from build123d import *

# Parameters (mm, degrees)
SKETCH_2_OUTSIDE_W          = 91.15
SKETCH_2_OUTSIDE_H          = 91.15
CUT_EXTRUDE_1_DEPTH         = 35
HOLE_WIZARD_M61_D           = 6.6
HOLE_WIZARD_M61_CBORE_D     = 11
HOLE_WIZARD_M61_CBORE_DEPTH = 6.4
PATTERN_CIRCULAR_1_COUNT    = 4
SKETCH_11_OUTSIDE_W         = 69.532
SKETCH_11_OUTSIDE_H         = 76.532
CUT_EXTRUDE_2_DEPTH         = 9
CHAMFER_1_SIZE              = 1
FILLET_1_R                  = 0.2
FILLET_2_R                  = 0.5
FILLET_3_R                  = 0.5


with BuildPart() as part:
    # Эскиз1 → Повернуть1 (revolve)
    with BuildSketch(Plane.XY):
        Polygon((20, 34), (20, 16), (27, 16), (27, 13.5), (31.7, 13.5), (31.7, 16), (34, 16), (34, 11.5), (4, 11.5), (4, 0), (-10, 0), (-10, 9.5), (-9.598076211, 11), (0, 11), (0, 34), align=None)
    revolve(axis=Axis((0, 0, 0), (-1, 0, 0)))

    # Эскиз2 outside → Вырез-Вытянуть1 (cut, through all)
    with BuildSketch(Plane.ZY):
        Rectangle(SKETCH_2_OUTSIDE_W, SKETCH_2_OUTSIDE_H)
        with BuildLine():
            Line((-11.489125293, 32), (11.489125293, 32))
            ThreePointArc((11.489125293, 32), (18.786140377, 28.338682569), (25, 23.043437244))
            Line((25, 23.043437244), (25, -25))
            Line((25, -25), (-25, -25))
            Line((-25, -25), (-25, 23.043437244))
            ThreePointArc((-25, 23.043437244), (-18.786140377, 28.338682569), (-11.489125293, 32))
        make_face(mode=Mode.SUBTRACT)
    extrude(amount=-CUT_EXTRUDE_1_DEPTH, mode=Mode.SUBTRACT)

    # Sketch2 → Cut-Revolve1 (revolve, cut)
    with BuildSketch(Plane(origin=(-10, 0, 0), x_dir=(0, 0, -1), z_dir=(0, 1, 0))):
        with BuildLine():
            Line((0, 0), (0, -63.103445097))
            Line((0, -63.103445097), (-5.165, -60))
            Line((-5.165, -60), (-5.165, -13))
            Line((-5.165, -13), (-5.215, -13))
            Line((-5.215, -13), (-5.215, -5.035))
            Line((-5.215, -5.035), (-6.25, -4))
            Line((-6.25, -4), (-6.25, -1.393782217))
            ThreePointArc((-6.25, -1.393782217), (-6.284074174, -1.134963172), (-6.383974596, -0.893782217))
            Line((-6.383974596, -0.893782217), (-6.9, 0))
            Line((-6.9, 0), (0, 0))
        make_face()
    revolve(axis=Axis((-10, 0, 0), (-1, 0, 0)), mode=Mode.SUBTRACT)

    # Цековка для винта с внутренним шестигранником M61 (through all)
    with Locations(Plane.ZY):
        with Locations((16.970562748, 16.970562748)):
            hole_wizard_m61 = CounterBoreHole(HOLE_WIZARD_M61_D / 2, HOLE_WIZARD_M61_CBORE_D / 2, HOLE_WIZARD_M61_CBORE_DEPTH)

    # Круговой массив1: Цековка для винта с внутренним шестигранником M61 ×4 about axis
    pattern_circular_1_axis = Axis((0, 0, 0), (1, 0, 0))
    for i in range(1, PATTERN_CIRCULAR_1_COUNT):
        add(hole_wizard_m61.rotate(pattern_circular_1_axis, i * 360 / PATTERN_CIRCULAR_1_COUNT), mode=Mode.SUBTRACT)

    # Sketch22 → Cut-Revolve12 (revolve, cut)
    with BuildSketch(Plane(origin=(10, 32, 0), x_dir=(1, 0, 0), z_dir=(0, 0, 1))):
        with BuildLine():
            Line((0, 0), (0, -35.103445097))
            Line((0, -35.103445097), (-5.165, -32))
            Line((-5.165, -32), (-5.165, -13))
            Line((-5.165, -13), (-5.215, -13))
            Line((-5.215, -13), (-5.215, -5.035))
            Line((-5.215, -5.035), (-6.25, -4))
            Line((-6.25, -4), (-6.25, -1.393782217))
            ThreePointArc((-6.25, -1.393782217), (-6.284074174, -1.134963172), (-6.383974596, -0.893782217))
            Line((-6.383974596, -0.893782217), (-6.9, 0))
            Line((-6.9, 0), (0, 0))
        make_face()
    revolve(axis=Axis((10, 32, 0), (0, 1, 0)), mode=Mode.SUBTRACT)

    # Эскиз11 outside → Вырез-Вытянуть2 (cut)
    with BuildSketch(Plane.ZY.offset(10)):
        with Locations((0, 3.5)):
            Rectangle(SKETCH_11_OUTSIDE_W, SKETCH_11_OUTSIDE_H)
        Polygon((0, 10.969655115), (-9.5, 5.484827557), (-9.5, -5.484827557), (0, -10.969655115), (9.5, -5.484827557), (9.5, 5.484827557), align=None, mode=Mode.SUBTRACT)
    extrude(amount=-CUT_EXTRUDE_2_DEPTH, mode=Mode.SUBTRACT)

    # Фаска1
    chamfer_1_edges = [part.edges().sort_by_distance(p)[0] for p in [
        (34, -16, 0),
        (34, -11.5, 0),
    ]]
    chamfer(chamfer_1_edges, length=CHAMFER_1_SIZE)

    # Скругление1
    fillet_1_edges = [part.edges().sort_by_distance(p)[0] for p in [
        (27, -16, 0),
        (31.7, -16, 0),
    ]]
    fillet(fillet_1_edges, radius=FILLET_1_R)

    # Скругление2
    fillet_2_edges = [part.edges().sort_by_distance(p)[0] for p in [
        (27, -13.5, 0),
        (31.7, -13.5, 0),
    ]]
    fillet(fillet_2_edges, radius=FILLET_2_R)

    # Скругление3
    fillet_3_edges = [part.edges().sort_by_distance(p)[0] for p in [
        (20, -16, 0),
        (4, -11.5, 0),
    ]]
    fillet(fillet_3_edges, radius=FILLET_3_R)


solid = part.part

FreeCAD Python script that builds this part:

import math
import FreeCAD as App
import Part
import Sketcher

V = App.Vector
Q = App.Units.Quantity


def edges_at(feature, points):
    """Names of the edges that pass closest to the given points."""
    edges = feature.Shape.Edges
    near = lambda p: min(range(len(edges)), key=lambda i: edges[i].distToShape(Part.Vertex(*p))[0])
    return sorted({f"Edge{near(p) + 1}" for p in points})


def add_polygon(sketch, points):
    """Adds a closed chain of lines whose ends are joined by coincident constraints."""
    first, n = sketch.GeometryCount, len(points)
    for a, b in zip(points, points[1:] + points[:1]):
        sketch.addGeometry(Part.LineSegment(App.Vector(*a, 0), App.Vector(*b, 0)), False)
    for i in range(n):
        sketch.addConstraint(Sketcher.Constraint("Coincident", first + i, 2, first + (i + 1) % n, 1))

doc = App.newDocument("Part")
params = doc.addObject("Spreadsheet::Sheet", "Params")
for row, (alias, value) in enumerate([
    ("sketch1_width", "20 mm"),
    ("sketch1_width2", "14 mm"),
    ("sketch1_width3", "30 mm"),
    ("sketch1_width4", "7 mm"),
    ("sketch1_height", "18 mm"),
    ("revolution_angle", "360 deg"),
    ("sketch2_radius", "34 mm"),
    ("sketch2_height", "50 mm"),
    ("sketch2_width", "91.15 mm"),
    ("sketch3_radius", "1 mm"),
    ("sketch3_width", "47 mm"),
    ("sketch3_height", "6.9 mm"),
    ("sketch3_height2", "0.05 mm"),
    ("groove_angle", "360 deg"),
    ("sketch4_diameter", "6.6 mm"),
    ("hole_diameter", "6.6 mm"),
    ("hole_cbore_diameter", "11 mm"),
    ("hole_cbore_depth", "6.4 mm"),
    ("sketch5_radius", "1 mm"),
    ("sketch5_height", "19 mm"),
    ("sketch5_width", "6.9 mm"),
    ("sketch5_width2", "0.05 mm"),
    ("groove2_angle", "360 deg"),
    ("pocket2_length", "9 mm"),
    ("chamfer_size", "1 mm"),
    ("fillet_radius", "0.2 mm"),
    ("fillet2_radius", "0.5 mm"),
    ("fillet3_radius", "0.5 mm"),
], start=1):
    params.set(f"A{row}", alias)
    params.set(f"B{row}", "=" + value)
    params.setAlias(f"B{row}", alias)

body = doc.addObject("PartDesign::Body", "Body")

sketch1 = body.newObject("Sketcher::SketchObject", "Sketch")
sketch1.AttachmentSupport = (doc.getObject("XY_Plane"), [""])
sketch1.MapMode = "FlatFace"
add_polygon(sketch1, [(20, 16), (20, 34), (0, 34), (0, 11), (-9.6, 11), (-10, 9.5), (-10, 0), (4, 0), (4, 11.5), (34, 11.5), (34, 16), (31.7, 16), (31.7, 13.5), (27, 13.5), (27, 16)])
sketch1.addConstraint([
    Sketcher.Constraint("Vertical", 0),
    Sketcher.Constraint("Horizontal", 1),
    Sketcher.Constraint("Vertical", 2),
    Sketcher.Constraint("Horizontal", 3),
    Sketcher.Constraint("Vertical", 5),
    Sketcher.Constraint("Horizontal", 6),
    Sketcher.Constraint("Vertical", 7),
    Sketcher.Constraint("Horizontal", 8),
    Sketcher.Constraint("Vertical", 9),
    Sketcher.Constraint("Horizontal", 10),
    Sketcher.Constraint("Vertical", 11),
    Sketcher.Constraint("Horizontal", 12),
    Sketcher.Constraint("Vertical", 13),
    Sketcher.Constraint("Horizontal", 14),
    Sketcher.Constraint("PointOnObject", 1, 2, -2),
    Sketcher.Constraint("PointOnObject", 5, 2, -1),
    Sketcher.Constraint("Horizontal", 10, 2, 13, 2),
    Sketcher.Constraint("DistanceX", 1, 2, 1, 1, 20.0),
    Sketcher.Constraint("DistanceX", 6, 1, 6, 2, 14.0),
    Sketcher.Constraint("DistanceX", 8, 1, 8, 2, 30.0),
    Sketcher.Constraint("DistanceX", 14, 2, 14, 1, 7.0),
    Sketcher.Constraint("DistanceY", 0, 1, 0, 2, 18.0),
    Sketcher.Constraint("DistanceY", 2, 2, 2, 1, 23.0),
    Sketcher.Constraint("Angle", 4, Q("-105 deg")),
    Sketcher.Constraint("DistanceX", 10, 2, 10, 1, 2.3),
    Sketcher.Constraint("DistanceX", 12, 2, 12, 1, 4.7),
    Sketcher.Constraint("DistanceY", 5, 2, 5, 1, 9.5),
    Sketcher.Constraint("DistanceY", 7, 1, 7, 2, 11.5),
    Sketcher.Constraint("DistanceY", 9, 1, 9, 2, 4.5),
    Sketcher.Constraint("DistanceY", 11, 2, 11, 1, 2.5),
])
sketch1.setExpression("Constraints[32]", "Params.sketch1_width")
sketch1.setExpression("Constraints[33]", "Params.sketch1_width2")
sketch1.setExpression("Constraints[34]", "Params.sketch1_width3")
sketch1.setExpression("Constraints[35]", "Params.sketch1_width4")
sketch1.setExpression("Constraints[36]", "Params.sketch1_height")
revolution = body.newObject("PartDesign::Revolution", "Revolution")
revolution.Profile = sketch1
revolution.ReferenceAxis = (sketch1, ["H_Axis"])
revolution.setExpression("Angle", "Params.revolution_angle")

sketch2 = body.newObject("Sketcher::SketchObject", "Sketch001")
sketch2.AttachmentSupport = (doc.getObject("YZ_Plane"), [""])
sketch2.MapMode = "FlatFace"
add_polygon(sketch2, [(46, -46), (-46, -46), (-46, 46), (46, 46)])
sketch2.addGeometry(Part.ArcOfCircle(Part.Circle(V(0, 0, 0), V(0, 0, 1), 34), math.radians(-47), math.radians(-20)), False)
sketch2.addGeometry(Part.LineSegment(V(32, -11, 0), V(32, 11, 0)), False)
sketch2.addGeometry(Part.ArcOfCircle(Part.Circle(V(0, 0, 0), V(0, 0, 1), 34), math.radians(20), math.radians(47)), False)
sketch2.addGeometry(Part.LineSegment(V(23, 25, 0), V(-25, 25, 0)), False)
sketch2.addGeometry(Part.LineSegment(V(-25, 25, 0), V(-25, -25, 0)), False)
sketch2.addGeometry(Part.LineSegment(V(-25, -25, 0), V(23, -25, 0)), False)
sketch2.addConstraint([
    Sketcher.Constraint("Coincident", 4, 2, 5, 1),
    Sketcher.Constraint("Coincident", 5, 2, 6, 1),
    Sketcher.Constraint("Coincident", 6, 2, 7, 1),
    Sketcher.Constraint("Coincident", 7, 2, 8, 1),
    Sketcher.Constraint("Coincident", 8, 2, 9, 1),
    Sketcher.Constraint("Coincident", 9, 2, 4, 1),
    Sketcher.Constraint("Horizontal", 0),
    Sketcher.Constraint("Vertical", 1),
    Sketcher.Constraint("Horizontal", 2),
    Sketcher.Constraint("Vertical", 3),
    Sketcher.Constraint("Vertical", 5),
    Sketcher.Constraint("Horizontal", 7),
    Sketcher.Constraint("Vertical", 8),
    Sketcher.Constraint("Horizontal", 9),
    Sketcher.Constraint("Coincident", 4, 3, -1, 1),
    Sketcher.Constraint("Coincident", 6, 3, -1, 1),
    Sketcher.Constraint("Equal", 4, 6),
    Sketcher.Constraint("Symmetric", 0, 2, 2, 2, -1, 1),
    Sketcher.Constraint("Vertical", 6, 2, 9, 2),
    Sketcher.Constraint("Equal", 2, 1),
    Sketcher.Constraint("Radius", 4, 34.0),
    Sketcher.Constraint("DistanceY", 8, 2, 8, 1, 50.0),
    Sketcher.Constraint("DistanceX", -1, 1, 4, 2, 32.0),
    Sketcher.Constraint("DistanceX", 7, 2, -1, 1, 25.0),
    Sketcher.Constraint("DistanceX", 0, 2, 0, 1, 91.15),
])
sketch2.setExpression("Constraints[24]", "Params.sketch2_radius")
sketch2.setExpression("Constraints[25]", "Params.sketch2_height")
sketch2.setExpression("Constraints[28]", "Params.sketch2_width")
pocket1 = body.newObject("PartDesign::Pocket", "Pocket")
pocket1.Profile = sketch2
pocket1.Type = "ThroughAll"
pocket1.Reversed = True

sketch3 = body.newObject("Sketcher::SketchObject", "Sketch002")
sketch3.AttachmentSupport = (doc.getObject("XZ_Plane"), [""])
sketch3.MapMode = "FlatFace"
sketch3.addGeometry([
    Part.LineSegment(V(53.103, 0, 0), V(-10, 0, 0)),
    Part.LineSegment(V(-10, 0, 0), V(-10, 6.9, 0)),
    Part.LineSegment(V(-10, 6.9, 0), V(-9.106, 6.384, 0)),
    Part.ArcOfCircle(Part.Circle(V(-8.606, 7.25, 0), V(0, 0, 1), 1), math.radians(-120), math.radians(-90)),
    Part.LineSegment(V(-8.606, 6.25, 0), V(-6, 6.25, 0)),
    Part.LineSegment(V(-6, 6.25, 0), V(-4.965, 5.215, 0)),
    Part.LineSegment(V(-4.965, 5.215, 0), V(3, 5.215, 0)),
    Part.LineSegment(V(3, 5.215, 0), V(3, 5.165, 0)),
    Part.LineSegment(V(3, 5.165, 0), V(50, 5.165, 0)),
    Part.LineSegment(V(50, 5.165, 0), V(53.103, 0, 0)),
], False)
sketch3.addConstraint([
    Sketcher.Constraint("Coincident", 0, 2, 1, 1),
    Sketcher.Constraint("Coincident", 1, 2, 2, 1),
    Sketcher.Constraint("Tangent", 2, 2, 3, 1),
    Sketcher.Constraint("Tangent", 3, 2, 4, 1),
    Sketcher.Constraint("Coincident", 4, 2, 5, 1),
    Sketcher.Constraint("Coincident", 5, 2, 6, 1),
    Sketcher.Constraint("Coincident", 6, 2, 7, 1),
    Sketcher.Constraint("Coincident", 7, 2, 8, 1),
    Sketcher.Constraint("Coincident", 8, 2, 9, 1),
    Sketcher.Constraint("Coincident", 9, 2, 0, 1),
    Sketcher.Constraint("Horizontal", 0),
    Sketcher.Constraint("Vertical", 1),
    Sketcher.Constraint("Horizontal", 4),
    Sketcher.Constraint("Horizontal", 6),
    Sketcher.Constraint("Vertical", 7),
    Sketcher.Constraint("Horizontal", 8),
    Sketcher.Constraint("PointOnObject", 0, 2, -1),
    Sketcher.Constraint("Radius", 3, 1.0),
    Sketcher.Constraint("DistanceX", 8, 1, 8, 2, 47.0),
    Sketcher.Constraint("Angle", 2, Q("-30 deg")),
    Sketcher.Constraint("Angle", 5, Q("-45 deg")),
    Sketcher.Constraint("Angle", 9, Q("-59 deg")),
    Sketcher.Constraint("DistanceY", 1, 1, 1, 2, 6.9),
    Sketcher.Constraint("DistanceX", 0, 2, -1, 1, 10.0),
    Sketcher.Constraint("DistanceX", 4, 2, -1, 1, 6.0),
    Sketcher.Constraint("DistanceX", -1, 1, 6, 2, 3.0),
    Sketcher.Constraint("DistanceY", 7, 2, 7, 1, 0.05),
    Sketcher.Constraint("DistanceX", 6, 1, 6, 2, 7.965),
    Sketcher.Constraint("DistanceY", -1, 1, 3, 3, 7.25),
])
sketch3.setExpression("Constraints[17]", "Params.sketch3_radius")
sketch3.setExpression("Constraints[18]", "Params.sketch3_width")
sketch3.setExpression("Constraints[22]", "Params.sketch3_height")
sketch3.setExpression("Constraints[26]", "Params.sketch3_height2")
groove = body.newObject("PartDesign::Groove", "Groove")
groove.Profile = sketch3
groove.ReferenceAxis = (sketch3, ["H_Axis"])
groove.setExpression("Angle", "Params.groove_angle")

sketch4 = body.newObject("Sketcher::SketchObject", "Sketch003")
sketch4.AttachmentSupport = (doc.getObject("YZ_Plane"), [""])
sketch4.MapMode = "FlatFace"
sketch4.addGeometry(Part.Circle(V(17, 17, 0), V(0, 0, 1), 3.3), False)
sketch4.addConstraint([
    Sketcher.Constraint("Diameter", 0, 6.6),
    Sketcher.Constraint("DistanceX", -1, 1, 0, 3, 16.970563),
    Sketcher.Constraint("DistanceY", -1, 1, 0, 3, 16.970563),
])
sketch4.setExpression("Constraints[0]", "Params.sketch4_diameter")
doc.recompute()
hole = body.newObject("PartDesign::Hole", "Hole")
hole.Profile = sketch4
hole.ThreadType = "None"
hole.setExpression("Diameter", "Params.hole_diameter")
hole.DepthType = "ThroughAll"
hole.HoleCutType = "Counterbore"
hole.setExpression("HoleCutDiameter", "Params.hole_cbore_diameter")
hole.setExpression("HoleCutDepth", "Params.hole_cbore_depth")
hole.Reversed = True
doc.recompute()

polarpattern = body.newObject("PartDesign::PolarPattern", "PolarPattern")
polarpattern.Originals = [hole]
polarpattern.Axis = (doc.getObject("X_Axis"), [""])
polarpattern.Angle = 360
polarpattern.Occurrences = 4
body.Tip = polarpattern

sketch5 = body.newObject("Sketcher::SketchObject", "Sketch004")
sketch5.AttachmentSupport = (doc.getObject("XY_Plane"), [""])
sketch5.MapMode = "FlatFace"
sketch5.addGeometry([
    Part.LineSegment(V(10, -3.103, 0), V(10, 32, 0)),
    Part.LineSegment(V(10, 32, 0), V(3.1, 32, 0)),
    Part.LineSegment(V(3.1, 32, 0), V(3.616, 31.106, 0)),
    Part.ArcOfCircle(Part.Circle(V(2.75, 30.606, 0), V(0, 0, 1), 1), math.radians(0), math.radians(30)),
    Part.LineSegment(V(3.75, 30.606, 0), V(3.75, 28, 0)),
    Part.LineSegment(V(3.75, 28, 0), V(4.785, 26.965, 0)),
    Part.LineSegment(V(4.785, 26.965, 0), V(4.785, 19, 0)),
    Part.LineSegment(V(4.785, 19, 0), V(4.835, 19, 0)),
    Part.LineSegment(V(4.835, 19, 0), V(4.835, 0, 0)),
    Part.LineSegment(V(4.835, 0, 0), V(10, -3.103, 0)),
], False)
sketch5.addGeometry(Part.LineSegment(V(10, -3.103, 0), V(10, 32, 0)), True)
sketch5.addConstraint([
    Sketcher.Constraint("Coincident", 0, 2, 1, 1),
    Sketcher.Constraint("Coincident", 1, 2, 2, 1),
    Sketcher.Constraint("Tangent", 2, 2, 3, 2),
    Sketcher.Constraint("Tangent", 3, 1, 4, 1),
    Sketcher.Constraint("Coincident", 4, 2, 5, 1),
    Sketcher.Constraint("Coincident", 5, 2, 6, 1),
    Sketcher.Constraint("Coincident", 6, 2, 7, 1),
    Sketcher.Constraint("Coincident", 7, 2, 8, 1),
    Sketcher.Constraint("Coincident", 8, 2, 9, 1),
    Sketcher.Constraint("Coincident", 9, 2, 0, 1),
    Sketcher.Constraint("Vertical", 0),
    Sketcher.Constraint("Horizontal", 1),
    Sketcher.Constraint("Vertical", 4),
    Sketcher.Constraint("Vertical", 6),
    Sketcher.Constraint("Horizontal", 7),
    Sketcher.Constraint("Vertical", 8),
    Sketcher.Constraint("Vertical", 10),
    Sketcher.Constraint("Coincident", 10, 1, 9, 2),
    Sketcher.Constraint("PointOnObject", 8, 2, -1),
    Sketcher.Constraint("Horizontal", 1, 2, 10, 2),
    Sketcher.Constraint("Radius", 3, 1.0),
    Sketcher.Constraint("DistanceY", 8, 2, 8, 1, 19.0),
    Sketcher.Constraint("Angle", 2, Q("-60 deg")),
    Sketcher.Constraint("Angle", 5, Q("-45 deg")),
    Sketcher.Constraint("Angle", 9, Q("-31 deg")),
    Sketcher.Constraint("DistanceX", 1, 2, 1, 1, 6.9),
    Sketcher.Constraint("DistanceX", -1, 1, 0, 2, 10.0),
    Sketcher.Constraint("DistanceY", -1, 1, 0, 2, 32.0),
    Sketcher.Constraint("DistanceY", -1, 1, 4, 2, 28.0),
    Sketcher.Constraint("DistanceX", 7, 1, 7, 2, 0.05),
    Sketcher.Constraint("DistanceY", 6, 2, 6, 1, 7.965),
    Sketcher.Constraint("DistanceX", -1, 1, 3, 3, 2.75),
])
sketch5.setExpression("Constraints[20]", "Params.sketch5_radius")
sketch5.setExpression("Constraints[21]", "Params.sketch5_height")
sketch5.setExpression("Constraints[25]", "Params.sketch5_width")
sketch5.setExpression("Constraints[29]", "Params.sketch5_width2")
groove2 = body.newObject("PartDesign::Groove", "Groove001")
groove2.Profile = sketch5
groove2.ReferenceAxis = (sketch5, ["Axis0"])
groove2.setExpression("Angle", "Params.groove2_angle")

sketch6 = body.newObject("Sketcher::SketchObject", "Sketch005")
sketch6.AttachmentSupport = (doc.getObject("YZ_Plane"), [""])
sketch6.MapMode = "FlatFace"
sketch6.AttachmentOffset = App.Placement(V(0, 0, -10), App.Rotation())
add_polygon(sketch6, [(42, -35), (-35, -35), (-35, 35), (42, 35)])
add_polygon(sketch6, [(5, -10), (11, 0), (5, 10), (-5, 10), (-11, 0), (-5, -10)])
sketch6.addConstraint([
    Sketcher.Constraint("Horizontal", 0),
    Sketcher.Constraint("Vertical", 1),
    Sketcher.Constraint("Horizontal", 2),
    Sketcher.Constraint("Vertical", 3),
    Sketcher.Constraint("Horizontal", 6),
    Sketcher.Constraint("Horizontal", 9),
    Sketcher.Constraint("Symmetric", 4, 2, 7, 2, -1, 1),
    Sketcher.Constraint("Symmetric", 5, 2, 8, 2, -1, 1),
    Sketcher.Constraint("PointOnObject", 4, 2, -1),
    Sketcher.Constraint("Parallel", 4, 7),
    Sketcher.Constraint("Vertical", 6, 2, 8, 2),
    Sketcher.Constraint("Angle", 4, Q("60 deg")),
    Sketcher.Constraint("DistanceY", 8, 2, 6, 2, 19.0),
    Sketcher.Constraint("DistanceX", 0, 2, 0, 1, 76.532),
    Sketcher.Constraint("DistanceY", 1, 1, 1, 2, 69.532),
    Sketcher.Constraint("DistanceX", 0, 2, -1, 1, 34.766),
    Sketcher.Constraint("DistanceY", 0, 2, -1, 1, 34.766),
    Sketcher.Constraint("DistanceX", 6, 2, 6, 1, 10.969655),
])
pocket2 = body.newObject("PartDesign::Pocket", "Pocket001")
pocket2.Profile = sketch6
pocket2.setExpression("Length", "Params.pocket2_length")
pocket2.Reversed = True
doc.recompute()

chamfer = body.newObject("PartDesign::Chamfer", "Chamfer")
chamfer.Base = (pocket2, edges_at(pocket2, [(34, -16, 0), (34, -11.5, 0)]))
chamfer.setExpression("Size", "Params.chamfer_size")
doc.recompute()

fillet = body.newObject("PartDesign::Fillet", "Fillet")
fillet.Base = (chamfer, edges_at(chamfer, [(27, -16, 0), (31.7, -16, 0)]))
fillet.setExpression("Radius", "Params.fillet_radius")
doc.recompute()

fillet2 = body.newObject("PartDesign::Fillet", "Fillet001")
fillet2.Base = (fillet, edges_at(fillet, [(27, -13.5, 0), (31.7, -13.5, 0)]))
fillet2.setExpression("Radius", "Params.fillet2_radius")
doc.recompute()

fillet3 = body.newObject("PartDesign::Fillet", "Fillet002")
fillet3.Base = (fillet2, edges_at(fillet2, [(20, -16, 0), (4, -11.5, 0)]))
fillet3.setExpression("Radius", "Params.fillet3_radius")

doc.recompute()
